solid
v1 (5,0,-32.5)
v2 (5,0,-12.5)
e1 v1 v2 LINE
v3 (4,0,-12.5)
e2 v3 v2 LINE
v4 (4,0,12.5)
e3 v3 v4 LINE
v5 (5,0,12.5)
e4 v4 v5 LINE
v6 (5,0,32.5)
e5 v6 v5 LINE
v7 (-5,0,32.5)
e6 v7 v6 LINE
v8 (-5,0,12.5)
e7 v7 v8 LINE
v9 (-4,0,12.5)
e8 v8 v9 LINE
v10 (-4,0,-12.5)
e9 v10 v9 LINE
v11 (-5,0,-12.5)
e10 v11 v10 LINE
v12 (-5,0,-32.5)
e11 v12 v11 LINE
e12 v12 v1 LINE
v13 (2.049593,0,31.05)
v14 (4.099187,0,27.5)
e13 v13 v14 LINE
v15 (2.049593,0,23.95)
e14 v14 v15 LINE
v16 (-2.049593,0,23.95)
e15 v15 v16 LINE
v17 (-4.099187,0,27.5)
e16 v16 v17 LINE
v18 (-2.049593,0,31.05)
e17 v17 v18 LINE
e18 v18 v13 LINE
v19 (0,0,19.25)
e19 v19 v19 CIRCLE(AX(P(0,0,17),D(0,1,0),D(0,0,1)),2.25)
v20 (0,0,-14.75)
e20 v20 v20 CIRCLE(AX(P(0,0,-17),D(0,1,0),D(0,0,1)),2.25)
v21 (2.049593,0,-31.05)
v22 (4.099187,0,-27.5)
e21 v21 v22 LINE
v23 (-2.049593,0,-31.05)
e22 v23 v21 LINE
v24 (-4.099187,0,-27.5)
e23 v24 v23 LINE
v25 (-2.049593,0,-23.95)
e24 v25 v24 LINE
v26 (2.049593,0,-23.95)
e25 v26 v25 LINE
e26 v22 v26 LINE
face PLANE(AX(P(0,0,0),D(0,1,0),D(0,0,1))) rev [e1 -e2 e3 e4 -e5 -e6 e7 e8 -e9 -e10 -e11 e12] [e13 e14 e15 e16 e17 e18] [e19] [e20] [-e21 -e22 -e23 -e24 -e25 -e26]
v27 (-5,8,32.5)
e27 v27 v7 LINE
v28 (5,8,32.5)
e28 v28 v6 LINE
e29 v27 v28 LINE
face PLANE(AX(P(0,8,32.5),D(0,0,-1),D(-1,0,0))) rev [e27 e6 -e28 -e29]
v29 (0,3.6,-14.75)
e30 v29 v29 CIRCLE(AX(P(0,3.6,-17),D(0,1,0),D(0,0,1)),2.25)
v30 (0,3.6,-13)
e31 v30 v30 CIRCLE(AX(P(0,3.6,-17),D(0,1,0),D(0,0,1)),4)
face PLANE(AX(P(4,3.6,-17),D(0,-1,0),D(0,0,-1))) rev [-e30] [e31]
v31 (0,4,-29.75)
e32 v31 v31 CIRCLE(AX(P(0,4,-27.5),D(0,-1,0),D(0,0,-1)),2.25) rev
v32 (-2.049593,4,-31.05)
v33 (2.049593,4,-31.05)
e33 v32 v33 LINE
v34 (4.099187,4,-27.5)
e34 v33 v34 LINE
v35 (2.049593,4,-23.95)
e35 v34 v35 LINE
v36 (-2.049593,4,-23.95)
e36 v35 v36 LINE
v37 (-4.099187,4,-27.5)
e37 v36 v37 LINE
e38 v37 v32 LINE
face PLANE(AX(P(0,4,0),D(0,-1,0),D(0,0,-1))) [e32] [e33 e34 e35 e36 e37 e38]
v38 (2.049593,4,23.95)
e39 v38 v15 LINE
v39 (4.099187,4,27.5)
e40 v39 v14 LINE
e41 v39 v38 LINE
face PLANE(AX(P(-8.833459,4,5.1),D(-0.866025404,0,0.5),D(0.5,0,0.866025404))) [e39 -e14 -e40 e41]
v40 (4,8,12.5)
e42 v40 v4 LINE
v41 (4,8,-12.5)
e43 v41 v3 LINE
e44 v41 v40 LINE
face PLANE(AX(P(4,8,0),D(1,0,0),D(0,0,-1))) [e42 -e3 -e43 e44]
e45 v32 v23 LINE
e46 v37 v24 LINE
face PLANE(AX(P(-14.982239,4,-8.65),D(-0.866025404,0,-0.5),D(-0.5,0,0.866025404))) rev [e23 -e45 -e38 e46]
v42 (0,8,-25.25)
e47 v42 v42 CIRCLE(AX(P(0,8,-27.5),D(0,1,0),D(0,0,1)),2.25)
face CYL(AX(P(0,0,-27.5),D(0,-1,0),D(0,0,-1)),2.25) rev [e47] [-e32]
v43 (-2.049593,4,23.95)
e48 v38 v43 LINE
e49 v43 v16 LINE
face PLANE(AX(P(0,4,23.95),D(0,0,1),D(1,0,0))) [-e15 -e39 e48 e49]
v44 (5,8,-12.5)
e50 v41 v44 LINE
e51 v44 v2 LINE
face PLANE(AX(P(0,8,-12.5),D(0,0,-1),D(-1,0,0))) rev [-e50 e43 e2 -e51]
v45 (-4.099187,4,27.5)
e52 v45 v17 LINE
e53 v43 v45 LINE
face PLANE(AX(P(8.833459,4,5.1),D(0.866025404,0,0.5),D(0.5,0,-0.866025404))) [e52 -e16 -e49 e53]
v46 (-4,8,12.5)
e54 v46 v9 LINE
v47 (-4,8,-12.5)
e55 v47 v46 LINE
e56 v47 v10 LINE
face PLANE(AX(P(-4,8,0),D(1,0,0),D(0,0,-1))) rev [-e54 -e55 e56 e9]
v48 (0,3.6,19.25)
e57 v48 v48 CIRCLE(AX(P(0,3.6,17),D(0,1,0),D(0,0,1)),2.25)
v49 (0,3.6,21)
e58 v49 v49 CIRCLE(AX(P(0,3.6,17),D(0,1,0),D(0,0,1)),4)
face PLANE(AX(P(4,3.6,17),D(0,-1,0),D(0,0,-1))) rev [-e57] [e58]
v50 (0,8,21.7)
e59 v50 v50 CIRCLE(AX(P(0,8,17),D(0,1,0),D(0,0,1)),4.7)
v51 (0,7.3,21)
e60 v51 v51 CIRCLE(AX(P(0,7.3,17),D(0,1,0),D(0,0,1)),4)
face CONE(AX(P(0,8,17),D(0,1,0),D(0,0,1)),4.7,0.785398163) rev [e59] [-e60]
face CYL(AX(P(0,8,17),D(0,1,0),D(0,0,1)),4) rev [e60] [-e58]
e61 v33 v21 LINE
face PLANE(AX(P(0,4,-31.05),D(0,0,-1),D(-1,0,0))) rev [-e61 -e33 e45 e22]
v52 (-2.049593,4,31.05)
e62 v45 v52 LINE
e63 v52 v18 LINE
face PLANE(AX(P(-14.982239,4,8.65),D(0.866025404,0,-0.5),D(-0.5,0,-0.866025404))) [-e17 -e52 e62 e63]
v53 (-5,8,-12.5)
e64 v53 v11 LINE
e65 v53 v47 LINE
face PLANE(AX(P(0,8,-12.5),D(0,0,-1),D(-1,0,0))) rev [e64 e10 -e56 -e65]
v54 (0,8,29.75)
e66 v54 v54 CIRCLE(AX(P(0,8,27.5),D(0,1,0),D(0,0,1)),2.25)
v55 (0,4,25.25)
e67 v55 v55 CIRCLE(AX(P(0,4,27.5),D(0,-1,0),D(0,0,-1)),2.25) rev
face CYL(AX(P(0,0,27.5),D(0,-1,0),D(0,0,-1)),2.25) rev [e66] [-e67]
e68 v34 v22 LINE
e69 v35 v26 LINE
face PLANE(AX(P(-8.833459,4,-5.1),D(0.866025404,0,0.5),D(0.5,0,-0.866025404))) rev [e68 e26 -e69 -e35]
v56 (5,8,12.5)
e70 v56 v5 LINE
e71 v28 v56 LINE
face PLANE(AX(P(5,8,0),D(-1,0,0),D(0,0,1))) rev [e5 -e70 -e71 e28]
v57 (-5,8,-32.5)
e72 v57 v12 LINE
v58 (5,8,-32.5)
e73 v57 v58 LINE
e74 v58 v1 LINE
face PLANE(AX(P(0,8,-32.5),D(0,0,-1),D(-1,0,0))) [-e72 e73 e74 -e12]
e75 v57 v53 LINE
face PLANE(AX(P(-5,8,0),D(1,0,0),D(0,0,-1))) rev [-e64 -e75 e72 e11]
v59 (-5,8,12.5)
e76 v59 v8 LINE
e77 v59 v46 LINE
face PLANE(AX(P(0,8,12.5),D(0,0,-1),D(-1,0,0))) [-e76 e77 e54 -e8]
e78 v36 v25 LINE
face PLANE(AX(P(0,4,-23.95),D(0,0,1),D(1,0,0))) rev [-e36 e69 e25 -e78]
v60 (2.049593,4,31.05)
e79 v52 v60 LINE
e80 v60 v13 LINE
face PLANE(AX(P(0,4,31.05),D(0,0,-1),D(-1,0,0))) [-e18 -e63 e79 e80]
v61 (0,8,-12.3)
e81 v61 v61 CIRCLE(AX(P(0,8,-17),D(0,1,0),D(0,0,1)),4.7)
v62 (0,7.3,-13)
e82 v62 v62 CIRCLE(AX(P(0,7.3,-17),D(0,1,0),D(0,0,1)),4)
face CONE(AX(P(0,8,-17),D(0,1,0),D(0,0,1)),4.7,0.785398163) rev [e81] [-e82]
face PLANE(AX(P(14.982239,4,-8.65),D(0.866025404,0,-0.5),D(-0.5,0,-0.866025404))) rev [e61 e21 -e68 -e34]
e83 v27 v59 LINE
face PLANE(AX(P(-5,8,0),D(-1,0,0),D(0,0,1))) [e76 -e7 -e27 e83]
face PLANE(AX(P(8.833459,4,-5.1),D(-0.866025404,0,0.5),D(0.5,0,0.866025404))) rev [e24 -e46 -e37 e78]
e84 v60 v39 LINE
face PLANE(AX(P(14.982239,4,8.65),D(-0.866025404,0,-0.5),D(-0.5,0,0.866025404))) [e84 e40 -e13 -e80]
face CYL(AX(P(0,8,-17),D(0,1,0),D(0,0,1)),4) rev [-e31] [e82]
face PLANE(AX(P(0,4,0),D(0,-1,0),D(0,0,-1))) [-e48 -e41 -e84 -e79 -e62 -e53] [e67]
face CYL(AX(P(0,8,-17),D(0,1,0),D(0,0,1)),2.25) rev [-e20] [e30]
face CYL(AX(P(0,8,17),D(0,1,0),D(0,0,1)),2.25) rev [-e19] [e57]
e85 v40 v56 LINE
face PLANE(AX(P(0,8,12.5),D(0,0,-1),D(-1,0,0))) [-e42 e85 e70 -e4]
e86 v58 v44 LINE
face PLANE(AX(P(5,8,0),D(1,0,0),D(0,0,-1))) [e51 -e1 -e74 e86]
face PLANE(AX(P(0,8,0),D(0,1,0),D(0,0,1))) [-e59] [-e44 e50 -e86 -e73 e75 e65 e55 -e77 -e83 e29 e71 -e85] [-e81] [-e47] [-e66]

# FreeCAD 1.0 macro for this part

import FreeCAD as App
import Part
import Sketcher
from FreeCAD import Vector
Q = App.Units.Quantity

doc = App.newDocument("Part")
body = doc.addObject("PartDesign::Body", "Body")

sketch1 = body.newObject("Sketcher::SketchObject", "Sketch")
sketch1.AttachmentSupport = (doc.getObject("XZ_Plane"), [""])
sketch1.MapMode = "FlatFace"
sketch1.addGeometry([
    Part.LineSegment(Vector(-5, -32.5, 0), Vector(-5, -12.5, 0)),
    Part.LineSegment(Vector(-5, -12.5, 0), Vector(-4, -12.5, 0)),
    Part.LineSegment(Vector(-4, -12.5, 0), Vector(-4, 12.5, 0)),
    Part.LineSegment(Vector(-4, 12.5, 0), Vector(-5, 12.5, 0)),
    Part.LineSegment(Vector(-5, 12.5, 0), Vector(-5, 32.5, 0)),
    Part.LineSegment(Vector(-5, 32.5, 0), Vector(5, 32.5, 0)),
    Part.LineSegment(Vector(5, 32.5, 0), Vector(5, 12.5, 0)),
    Part.LineSegment(Vector(5, 12.5, 0), Vector(4, 12.5, 0)),
    Part.LineSegment(Vector(4, 12.5, 0), Vector(4, -12.5, 0)),
    Part.LineSegment(Vector(4, -12.5, 0), Vector(5, -12.5, 0)),
    Part.LineSegment(Vector(5, -12.5, 0), Vector(5, -32.5, 0)),
    Part.LineSegment(Vector(5, -32.5, 0), Vector(-5, -32.5, 0)),
], False)
sketch1.addConstraint([
    Sketcher.Constraint("Coincident", 0, 2, 1, 1),
    Sketcher.Constraint("Coincident", 1, 2, 2, 1),
    Sketcher.Constraint("Coincident", 2, 2, 3, 1),
    Sketcher.Constraint("Coincident", 3, 2, 4, 1),
    Sketcher.Constraint("Coincident", 4, 2, 5, 1),
    Sketcher.Constraint("Coincident", 5, 2, 6, 1),
    Sketcher.Constraint("Coincident", 6, 2, 7, 1),
    Sketcher.Constraint("Coincident", 7, 2, 8, 1),
    Sketcher.Constraint("Coincident", 8, 2, 9, 1),
    Sketcher.Constraint("Coincident", 9, 2, 10, 1),
    Sketcher.Constraint("Coincident", 10, 2, 11, 1),
    Sketcher.Constraint("Coincident", 11, 2, 0, 1),
    Sketcher.Constraint("Vertical", 0),
    Sketcher.Constraint("Horizontal", 1),
    Sketcher.Constraint("Vertical", 2),
    Sketcher.Constraint("Horizontal", 3),
    Sketcher.Constraint("Vertical", 4),
    Sketcher.Constraint("Horizontal", 5),
    Sketcher.Constraint("Vertical", 6),
    Sketcher.Constraint("Horizontal", 7),
    Sketcher.Constraint("Vertical", 8),
    Sketcher.Constraint("Horizontal", 9),
    Sketcher.Constraint("Vertical", 10),
    Sketcher.Constraint("Horizontal", 11),
    Sketcher.Constraint("Symmetric", 0, 2, 6, 2, -1, 1),
    Sketcher.Constraint("Symmetric", 2, 2, 8, 2, -1, 1),
    Sketcher.Constraint("Symmetric", 4, 2, 10, 2, -1, 1),
    Sketcher.Constraint("Symmetric", 3, 2, 6, 2, -2),
    Sketcher.Constraint("DistanceX", 1, 1, 1, 2, 1.0),
    Sketcher.Constraint("DistanceX", 5, 1, 5, 2, 10.0),
    Sketcher.Constraint("DistanceY", 0, 1, 0, 2, 20.0),
    Sketcher.Constraint("DistanceY", 2, 1, 2, 2, 25.0),
])
pad1 = body.newObject("PartDesign::Pad", "Pad")
pad1.Profile = sketch1
pad1.Length = 8
pad1.Reversed = True

sketch2 = body.newObject("Sketcher::SketchObject", "Sketch001")
sketch2.AttachmentSupport = (doc.getObject("YZ_Plane"), [""])
sketch2.MapMode = "FlatFace"
sketch2.addGeometry([
    Part.LineSegment(Vector(0, -17, 0), Vector(8, -17, 0)),
    Part.LineSegment(Vector(8, -17, 0), Vector(8, -12.3, 0)),
    Part.LineSegment(Vector(8, -12.3, 0), Vector(7.3, -13, 0)),
    Part.LineSegment(Vector(7.3, -13, 0), Vector(3.6, -13, 0)),
    Part.LineSegment(Vector(3.6, -13, 0), Vector(3.6, -14.75, 0)),
    Part.LineSegment(Vector(3.6, -14.75, 0), Vector(0, -14.75, 0)),
    Part.LineSegment(Vector(0, -14.75, 0), Vector(0, -17, 0)),
], False)
sketch2.addGeometry(Part.LineSegment(Vector(8, -17, 0), Vector(0, -17, 0)), True)
sketch2.addConstraint([
    Sketcher.Constraint("Coincident", 0, 2, 1, 1),
    Sketcher.Constraint("Coincident", 1, 2, 2, 1),
    Sketcher.Constraint("Coincident", 2, 2, 3, 1),
    Sketcher.Constraint("Coincident", 3, 2, 4, 1),
    Sketcher.Constraint("Coincident", 4, 2, 5, 1),
    Sketcher.Constraint("Coincident", 5, 2, 6, 1),
    Sketcher.Constraint("Coincident", 6, 2, 0, 1),
    Sketcher.Constraint("Horizontal", 0),
    Sketcher.Constraint("Vertical", 1),
    Sketcher.Constraint("Horizontal", 3),
    Sketcher.Constraint("Vertical", 4),
    Sketcher.Constraint("Horizontal", 5),
    Sketcher.Constraint("Vertical", 6),
    Sketcher.Constraint("Horizontal", 7),
    Sketcher.Constraint("Coincident", 7, 1, 0, 2),
    Sketcher.Constraint("PointOnObject", 5, 2, -2),
    Sketcher.Constraint("PointOnObject", 7, 2, -2),
    Sketcher.Constraint("DistanceX", 0, 1, 0, 2, 8.0),
    Sketcher.Constraint("Angle", 2, Q("-135 deg")),
    Sketcher.Constraint("DistanceX", 3, 2, 3, 1, 3.7),
    Sketcher.Constraint("DistanceX", 5, 2, 5, 1, 3.6),
    Sketcher.Constraint("DistanceY", 1, 1, 1, 2, 4.7),
    Sketcher.Constraint("DistanceY", 0, 2, -1, 1, 17.0),
    Sketcher.Constraint("DistanceY", 4, 2, 4, 1, 1.75),
])
groove = body.newObject("PartDesign::Groove", "Groove")
groove.Profile = sketch2
groove.ReferenceAxis = (sketch2, ["Axis0"])
groove.Angle = 360
doc.recompute()

linearpattern = body.newObject("PartDesign::LinearPattern", "LinearPattern")
linearpattern.Originals = [groove]
linearpattern.Direction = (doc.getObject("Z_Axis"), [""])
linearpattern.Mode = "offset"
linearpattern.Offset = 34
linearpattern.Occurrences = 2
body.Tip = linearpattern

sketch3 = body.newObject("Sketcher::SketchObject", "Sketch002")
sketch3.AttachmentSupport = (doc.getObject("XZ_Plane"), [""])
sketch3.MapMode = "FlatFace"
sketch3.addGeometry([
    Part.Circle(Vector(0, 27.5, 0), Vector(0, 0, 1), 2.25),
    Part.Circle(Vector(0, -27.5, 0), Vector(0, 0, 1), 2.25),
    Part.Circle(Vector(-54.108399, 109.420812, 0), Vector(0, 0, 1), 2.25),
], False)
sketch3.addConstraint([
    Sketcher.Constraint("Equal", 0, 1),
    Sketcher.Constraint("Equal", 1, 2),
    Sketcher.Constraint("Symmetric", 0, 3, 1, 3, -1, 1),
    Sketcher.Constraint("PointOnObject", 0, 3, -2),
    Sketcher.Constraint("Diameter", 0, 4.5),
    Sketcher.Constraint("DistanceY", 1, 3, 0, 3, 55.0),
    Sketcher.Constraint("DistanceX", 2, 3, -1, 1, 54.108399),
    Sketcher.Constraint("DistanceY", -1, 1, 2, 3, 109.420812),
])
doc.recompute()
hole = body.newObject("PartDesign::Hole", "Hole")
hole.Profile = sketch3
hole.ThreadType = "None"
hole.Diameter = 4.5
hole.DepthType = "Dimension"
hole.Depth = 8
hole.DrillPoint = "Flat"

sketch4 = body.newObject("Sketcher::SketchObject", "Sketch003")
sketch4.AttachmentSupport = (doc.getObject("XZ_Plane"), [""])
sketch4.MapMode = "FlatFace"
sketch4.addGeometry([
    Part.LineSegment(Vector(2.049593, -31.05, 0), Vector(4.099187, -27.5, 0)),
    Part.LineSegment(Vector(4.099187, -27.5, 0), Vector(2.049593, -23.95, 0)),
    Part.LineSegment(Vector(2.049593, -23.95, 0), Vector(-2.049593, -23.95, 0)),
    Part.LineSegment(Vector(-2.049593, -23.95, 0), Vector(-4.099187, -27.5, 0)),
    Part.LineSegment(Vector(-4.099187, -27.5, 0), Vector(-2.049593, -31.05, 0)),
    Part.LineSegment(Vector(-2.049593, -31.05, 0), Vector(2.049593, -31.05, 0)),
    Part.Circle(Vector(0, -27.5, 0), Vector(0, 0, 1), 2.25),
    Part.LineSegment(Vector(-2.049593, 23.95, 0), Vector(2.049593, 23.95, 0)),
    Part.LineSegment(Vector(2.049593, 23.95, 0), Vector(4.099187, 27.5, 0)),
    Part.LineSegment(Vector(4.099187, 27.5, 0), Vector(2.049593, 31.05, 0)),
    Part.LineSegment(Vector(2.049593, 31.05, 0), Vector(-2.049593, 31.05, 0)),
    Part.LineSegment(Vector(-2.049593, 31.05, 0), Vector(-4.099187, 27.5, 0)),
    Part.LineSegment(Vector(-4.099187, 27.5, 0), Vector(-2.049593, 23.95, 0)),
    Part.Circle(Vector(0, 27.5, 0), Vector(0, 0, 1), 2.25),
], False)
sketch4.addConstraint([
    Sketcher.Constraint("Coincident", 0, 2, 1, 1),
    Sketcher.Constraint("Coincident", 1, 2, 2, 1),
    Sketcher.Constraint("Coincident", 2, 2, 3, 1),
    Sketcher.Constraint("Coincident", 3, 2, 4, 1),
    Sketcher.Constraint("Coincident", 4, 2, 5, 1),
    Sketcher.Constraint("Coincident", 5, 2, 0, 1),
    Sketcher.Constraint("Coincident", 7, 2, 8, 1),
    Sketcher.Constraint("Coincident", 8, 2, 9, 1),
    Sketcher.Constraint("Coincident", 9, 2, 10, 1),
    Sketcher.Constraint("Coincident", 10, 2, 11, 1),
    Sketcher.Constraint("Coincident", 11, 2, 12, 1),
    Sketcher.Constraint("Coincident", 12, 2, 7, 1),
    Sketcher.Constraint("Horizontal", 2),
    Sketcher.Constraint("Horizontal", 5),
    Sketcher.Constraint("Horizontal", 7),
    Sketcher.Constraint("Horizontal", 10),
    Sketcher.Constraint("Equal", 6, 13),
    Sketcher.Constraint("Symmetric", 6, 3, 13, 3, -1, 1),
    Sketcher.Constraint("Symmetric", 2, 2, 7, 2, -1, 1),
    Sketcher.Constraint("Symmetric", 3, 2, 8, 2, -1, 1),
    Sketcher.Constraint("Symmetric", 4, 2, 9, 2, -1, 1),
    Sketcher.Constraint("Symmetric", 0, 2, 11, 2, -1, 1),
    Sketcher.Constraint("Symmetric", 0, 2, 3, 2, -2),
    Sketcher.Constraint("PointOnObject", 6, 3, -2),
    Sketcher.Constraint("Parallel", 0, 3),
    Sketcher.Constraint("Parallel", 1, 4),
    Sketcher.Constraint("Parallel", 8, 11),
    Sketcher.Constraint("Parallel", 9, 12),
    Sketcher.Constraint("Horizontal", 6, 3, 0, 2),
    Sketcher.Constraint("Vertical", 2, 2, 4, 2),
    Sketcher.Constraint("Vertical", 1, 2, 5, 2),
    Sketcher.Constraint("Diameter", 6, 4.5),
    Sketcher.Constraint("Angle", 0, Q("60 deg")),
    Sketcher.Constraint("DistanceY", 6, 3, 13, 3, 55.0),
    Sketcher.Constraint("DistanceY", 4, 2, 2, 2, 7.1),
    Sketcher.Constraint("DistanceX", 2, 2, 2, 1, 4.099187),
])
pocket1 = body.newObject("PartDesign::Pocket", "Pocket")
pocket1.Profile = sketch4
pocket1.Length = 4

doc.recompute()
